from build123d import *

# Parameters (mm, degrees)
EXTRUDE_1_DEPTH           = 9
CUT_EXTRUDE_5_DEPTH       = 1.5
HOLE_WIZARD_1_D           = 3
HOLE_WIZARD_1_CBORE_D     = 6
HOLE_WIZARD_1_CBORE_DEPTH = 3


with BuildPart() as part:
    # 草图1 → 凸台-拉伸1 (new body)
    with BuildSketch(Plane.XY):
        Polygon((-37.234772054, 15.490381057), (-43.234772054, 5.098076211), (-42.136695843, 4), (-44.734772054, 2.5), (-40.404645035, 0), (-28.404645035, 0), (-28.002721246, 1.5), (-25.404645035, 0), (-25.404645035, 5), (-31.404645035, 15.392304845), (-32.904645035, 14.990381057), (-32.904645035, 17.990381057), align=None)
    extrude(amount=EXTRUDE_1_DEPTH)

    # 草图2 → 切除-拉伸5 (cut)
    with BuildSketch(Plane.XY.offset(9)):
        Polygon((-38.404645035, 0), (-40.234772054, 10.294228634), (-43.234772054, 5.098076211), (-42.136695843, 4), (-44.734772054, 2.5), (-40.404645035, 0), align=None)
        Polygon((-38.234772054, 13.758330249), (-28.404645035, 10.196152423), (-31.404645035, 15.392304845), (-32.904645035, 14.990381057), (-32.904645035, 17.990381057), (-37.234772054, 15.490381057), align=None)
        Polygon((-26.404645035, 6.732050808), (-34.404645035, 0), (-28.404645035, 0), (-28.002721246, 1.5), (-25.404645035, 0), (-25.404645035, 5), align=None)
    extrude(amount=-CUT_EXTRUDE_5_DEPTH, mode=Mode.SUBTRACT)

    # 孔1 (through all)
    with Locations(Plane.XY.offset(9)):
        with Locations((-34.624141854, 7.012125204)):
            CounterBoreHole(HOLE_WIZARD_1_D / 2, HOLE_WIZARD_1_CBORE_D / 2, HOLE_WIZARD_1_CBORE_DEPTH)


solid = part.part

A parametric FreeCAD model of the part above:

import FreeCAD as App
import Part
import Sketcher

V = App.Vector
Q = App.Units.Quantity


def add_polygon(sketch, points):
    """Adds a closed chain of lines whose ends are joined by coincident constraints."""
    first, n = sketch.GeometryCount, len(points)
    for a, b in zip(points, points[1:] + points[:1]):
        sketch.addGeometry(Part.LineSegment(App.Vector(*a, 0), App.Vector(*b, 0)), False)
    for i in range(n):
        sketch.addConstraint(Sketcher.Constraint("Coincident", first + i, 2, first + (i + 1) % n, 1))

doc = App.newDocument("Part")
body = doc.addObject("PartDesign::Body", "Body")

# Sketch on XY plane
sketch1 = body.newObject("Sketcher::SketchObject", "Sketch")
sketch1.AttachmentSupport = (doc.getObject("XY_Plane"), [""])
sketch1.MapMode = "FlatFace"
add_polygon(sketch1, [(-37.2, 15.5), (-43.2, 5.1), (-42.1, 4), (-44.7, 2.5), (-40.4, 0), (-28.4, 0), (-28, 1.5), (-25.4, 0), (-25.4, 5), (-31.4, 15.4), (-32.9, 15), (-32.9, 18)])  # lines 0-11
sketch1.addConstraint([
    Sketcher.Constraint("Horizontal", 4),
    Sketcher.Constraint("Vertical", 7),
    Sketcher.Constraint("Vertical", 10),
    Sketcher.Constraint("PointOnObject", 3, 2, -1),
    Sketcher.Constraint("PointOnObject", 6, 2, -1),
    Sketcher.Constraint("Perpendicular", 0, 3),
    Sketcher.Constraint("Parallel", 3, 6),
    Sketcher.Constraint("Perpendicular", 2, 8),
    Sketcher.Constraint("Perpendicular", 8, 11),
    Sketcher.Constraint("Equal", 1, 5),
    Sketcher.Constraint("Equal", 2, 6),
    Sketcher.Constraint("Equal", 0, 8),
    Sketcher.Constraint("Equal", 5, 9),
    Sketcher.Constraint("Equal", 3, 11),
    Sketcher.Constraint("DistanceX", 4, 1, 4, 2, 12.0),
    Sketcher.Constraint("DistanceY", 7, 1, 7, 2, 5.0),
    Sketcher.Constraint("DistanceY", 10, 1, 10, 2, 3.0),
    Sketcher.Constraint("Angle", 0, Q("-120 deg")),
    Sketcher.Constraint("Angle", 1, Q("-45 deg")),
    Sketcher.Constraint("Angle", 2, Q("-150 deg")),
    Sketcher.Constraint("Angle", 5, Q("75 deg")),
    Sketcher.Constraint("Angle", 9, Q("-165 deg")),
    Sketcher.Constraint("Distance", 2, 3.0),
    Sketcher.Constraint("DistanceX", 5, 2, -1, 1, 28.002721),
])
pad1 = body.newObject("PartDesign::Pad", "Pad")
pad1.Profile = sketch1
pad1.Length = 9

# Sketch on XY plane
sketch2 = body.newObject("Sketcher::SketchObject", "Sketch001")
sketch2.AttachmentSupport = (doc.getObject("XY_Plane"), [""])
sketch2.MapMode = "FlatFace"
sketch2.AttachmentOffset = App.Placement(V(0, 0, 9), App.Rotation())
add_polygon(sketch2, [(-38.4, 0), (-40.2, 10.3), (-43.2, 5.1), (-42.1, 4), (-44.7, 2.5), (-40.4, 0)])  # lines 0-5
add_polygon(sketch2, [(-38.2, 13.8), (-28.4, 10.2), (-31.4, 15.4), (-32.9, 15), (-32.9, 18), (-37.2, 15.5)])  # lines 6-11
add_polygon(sketch2, [(-26.4, 6.7), (-34.4, 0), (-28.4, 0), (-28, 1.5), (-25.4, 0), (-25.4, 5)])  # lines 12-17
sketch2.addConstraint([
    Sketcher.Constraint("Horizontal", 5),
    Sketcher.Constraint("Vertical", 9),
    Sketcher.Constraint("Horizontal", 13),
    Sketcher.Constraint("Vertical", 16),
    Sketcher.Constraint("PointOnObject", 4, 2, -1),
    Sketcher.Constraint("PointOnObject", 12, 2, -1),
    Sketcher.Constraint("PointOnObject", 15, 2, -1),
    Sketcher.Constraint("Perpendicular", 1, 4),
    Sketcher.Constraint("Perpendicular", 3, 7),
    Sketcher.Constraint("Perpendicular", 7, 10),
    Sketcher.Constraint("Perpendicular", 4, 11),
    Sketcher.Constraint("Perpendicular", 11, 15),
    Sketcher.Constraint("Perpendicular", 10, 17),
    Sketcher.Constraint("Vertical", 6, 2, 13, 2),
    Sketcher.Constraint("Equal", 0, 6),
    Sketcher.Constraint("Equal", 1, 7),
    Sketcher.Constraint("Equal", 2, 8),
    Sketcher.Constraint("Equal", 4, 10),
    Sketcher.Constraint("Equal", 6, 12),
    Sketcher.Constraint("Equal", 8, 14),
    Sketcher.Constraint("Equal", 3, 15),
    Sketcher.Constraint("Equal", 11, 17),
    Sketcher.Constraint("DistanceX", 5, 1, 5, 2, 2.0),
    Sketcher.Constraint("DistanceX", 13, 1, 13, 2, 6.0),
    Sketcher.Constraint("DistanceY", 9, 1, 9, 2, 3.0),
    Sketcher.Constraint("DistanceY", 16, 1, 16, 2, 5.0),
    Sketcher.Constraint("Angle", 1, Q("-120 deg")),
    Sketcher.Constraint("Angle", 2, Q("-45 deg")),
    Sketcher.Constraint("Angle", 3, Q("-150 deg")),
    Sketcher.Constraint("Angle", 8, Q("-165 deg")),
    Sketcher.Constraint("Angle", 14, Q("75 deg")),
    Sketcher.Constraint("Distance", 1, 6.0),
    Sketcher.Constraint("Distance", 3, 3.0),
    Sketcher.Constraint("DistanceX", 5, 2, 6, 2, 10.0),
    Sketcher.Constraint("DistanceY", 0, 2, 11, 2, 3.464102),
    Sketcher.Constraint("DistanceX", 14, 2, -1, 1, 28.002721),
])
pocket1 = body.newObject("PartDesign::Pocket", "Pocket")
pocket1.Profile = sketch2
pocket1.Length = 1.5

# Sketch on XY plane
sketch3 = body.newObject("Sketcher::SketchObject", "Sketch002")
sketch3.AttachmentSupport = (doc.getObject("XY_Plane"), [""])
sketch3.MapMode = "FlatFace"
sketch3.AttachmentOffset = App.Placement(V(0, 0, 9), App.Rotation())
sketch3.addGeometry(Part.Circle(V(-34.6, 7, 0), V(0, 0, 1), 1.5), False)
sketch3.addConstraint([
    Sketcher.Constraint("Diameter", 0, 3.0),
    Sketcher.Constraint("DistanceX", 0, 3, -1, 1, 34.624142),
    Sketcher.Constraint("DistanceY", -1, 1, 0, 3, 7.012125),
])
doc.recompute()
hole = body.newObject("PartDesign::Hole", "Hole")
hole.Profile = sketch3
hole.ThreadType = "None"
hole.Diameter = 3
hole.DepthType = "ThroughAll"
hole.HoleCutType = "Counterbore"
hole.HoleCutDiameter = 6
hole.HoleCutDepth = 3

doc.recompute()
